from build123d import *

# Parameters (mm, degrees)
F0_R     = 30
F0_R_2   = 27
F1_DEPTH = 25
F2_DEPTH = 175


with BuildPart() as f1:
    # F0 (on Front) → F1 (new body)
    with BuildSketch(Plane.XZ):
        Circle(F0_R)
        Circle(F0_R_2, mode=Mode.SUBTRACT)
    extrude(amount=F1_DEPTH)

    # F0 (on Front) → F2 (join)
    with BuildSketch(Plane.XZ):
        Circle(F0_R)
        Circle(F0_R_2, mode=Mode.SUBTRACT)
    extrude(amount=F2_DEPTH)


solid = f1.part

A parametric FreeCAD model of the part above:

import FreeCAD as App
import Part
import Sketcher
from FreeCAD import Vector
Q = App.Units.Quantity

doc = App.newDocument("Part")
body = doc.addObject("PartDesign::Body", "Body")

sketch1 = body.newObject("Sketcher::SketchObject", "Sketch")
sketch1.AttachmentSupport = (doc.getObject("XZ_Plane"), [""])
sketch1.MapMode = "FlatFace"
sketch1.addGeometry(Part.Circle(Vector(0, 0, 0), Vector(0, 0, 1), 30), False)
sketch1.addGeometry(Part.Circle(Vector(0, 0, 0), Vector(0, 0, 1), 27), False)
sketch1.addConstraint(Sketcher.Constraint("Coincident", 0, 3, -1, 1))
sketch1.addConstraint(Sketcher.Constraint("Coincident", 1, 3, -1, 1))
sketch1.addConstraint(Sketcher.Constraint("Diameter", 0, Q("60 mm")))
sketch1.addConstraint(Sketcher.Constraint("Diameter", 1, Q("54 mm")))
pad1 = body.newObject("PartDesign::Pad", "Pad")
pad1.Profile = sketch1
pad1.Length = 25

sketch2 = body.newObject("Sketcher::SketchObject", "Sketch001")
sketch2.AttachmentSupport = (doc.getObject("XZ_Plane"), [""])
sketch2.MapMode = "FlatFace"
sketch2.addGeometry(Part.Circle(Vector(0, 0, 0), Vector(0, 0, 1), 30), False)
sketch2.addGeometry(Part.Circle(Vector(0, 0, 0), Vector(0, 0, 1), 27), False)
sketch2.addConstraint(Sketcher.Constraint("Coincident", 0, 3, -1, 1))
sketch2.addConstraint(Sketcher.Constraint("Coincident", 1, 3, -1, 1))
sketch2.addConstraint(Sketcher.Constraint("Diameter", 0, Q("60 mm")))
sketch2.addConstraint(Sketcher.Constraint("Diameter", 1, Q("54 mm")))
pad2 = body.newObject("PartDesign::Pad", "Pad001")
pad2.Profile = sketch2
pad2.Length = 175

doc.recompute()
